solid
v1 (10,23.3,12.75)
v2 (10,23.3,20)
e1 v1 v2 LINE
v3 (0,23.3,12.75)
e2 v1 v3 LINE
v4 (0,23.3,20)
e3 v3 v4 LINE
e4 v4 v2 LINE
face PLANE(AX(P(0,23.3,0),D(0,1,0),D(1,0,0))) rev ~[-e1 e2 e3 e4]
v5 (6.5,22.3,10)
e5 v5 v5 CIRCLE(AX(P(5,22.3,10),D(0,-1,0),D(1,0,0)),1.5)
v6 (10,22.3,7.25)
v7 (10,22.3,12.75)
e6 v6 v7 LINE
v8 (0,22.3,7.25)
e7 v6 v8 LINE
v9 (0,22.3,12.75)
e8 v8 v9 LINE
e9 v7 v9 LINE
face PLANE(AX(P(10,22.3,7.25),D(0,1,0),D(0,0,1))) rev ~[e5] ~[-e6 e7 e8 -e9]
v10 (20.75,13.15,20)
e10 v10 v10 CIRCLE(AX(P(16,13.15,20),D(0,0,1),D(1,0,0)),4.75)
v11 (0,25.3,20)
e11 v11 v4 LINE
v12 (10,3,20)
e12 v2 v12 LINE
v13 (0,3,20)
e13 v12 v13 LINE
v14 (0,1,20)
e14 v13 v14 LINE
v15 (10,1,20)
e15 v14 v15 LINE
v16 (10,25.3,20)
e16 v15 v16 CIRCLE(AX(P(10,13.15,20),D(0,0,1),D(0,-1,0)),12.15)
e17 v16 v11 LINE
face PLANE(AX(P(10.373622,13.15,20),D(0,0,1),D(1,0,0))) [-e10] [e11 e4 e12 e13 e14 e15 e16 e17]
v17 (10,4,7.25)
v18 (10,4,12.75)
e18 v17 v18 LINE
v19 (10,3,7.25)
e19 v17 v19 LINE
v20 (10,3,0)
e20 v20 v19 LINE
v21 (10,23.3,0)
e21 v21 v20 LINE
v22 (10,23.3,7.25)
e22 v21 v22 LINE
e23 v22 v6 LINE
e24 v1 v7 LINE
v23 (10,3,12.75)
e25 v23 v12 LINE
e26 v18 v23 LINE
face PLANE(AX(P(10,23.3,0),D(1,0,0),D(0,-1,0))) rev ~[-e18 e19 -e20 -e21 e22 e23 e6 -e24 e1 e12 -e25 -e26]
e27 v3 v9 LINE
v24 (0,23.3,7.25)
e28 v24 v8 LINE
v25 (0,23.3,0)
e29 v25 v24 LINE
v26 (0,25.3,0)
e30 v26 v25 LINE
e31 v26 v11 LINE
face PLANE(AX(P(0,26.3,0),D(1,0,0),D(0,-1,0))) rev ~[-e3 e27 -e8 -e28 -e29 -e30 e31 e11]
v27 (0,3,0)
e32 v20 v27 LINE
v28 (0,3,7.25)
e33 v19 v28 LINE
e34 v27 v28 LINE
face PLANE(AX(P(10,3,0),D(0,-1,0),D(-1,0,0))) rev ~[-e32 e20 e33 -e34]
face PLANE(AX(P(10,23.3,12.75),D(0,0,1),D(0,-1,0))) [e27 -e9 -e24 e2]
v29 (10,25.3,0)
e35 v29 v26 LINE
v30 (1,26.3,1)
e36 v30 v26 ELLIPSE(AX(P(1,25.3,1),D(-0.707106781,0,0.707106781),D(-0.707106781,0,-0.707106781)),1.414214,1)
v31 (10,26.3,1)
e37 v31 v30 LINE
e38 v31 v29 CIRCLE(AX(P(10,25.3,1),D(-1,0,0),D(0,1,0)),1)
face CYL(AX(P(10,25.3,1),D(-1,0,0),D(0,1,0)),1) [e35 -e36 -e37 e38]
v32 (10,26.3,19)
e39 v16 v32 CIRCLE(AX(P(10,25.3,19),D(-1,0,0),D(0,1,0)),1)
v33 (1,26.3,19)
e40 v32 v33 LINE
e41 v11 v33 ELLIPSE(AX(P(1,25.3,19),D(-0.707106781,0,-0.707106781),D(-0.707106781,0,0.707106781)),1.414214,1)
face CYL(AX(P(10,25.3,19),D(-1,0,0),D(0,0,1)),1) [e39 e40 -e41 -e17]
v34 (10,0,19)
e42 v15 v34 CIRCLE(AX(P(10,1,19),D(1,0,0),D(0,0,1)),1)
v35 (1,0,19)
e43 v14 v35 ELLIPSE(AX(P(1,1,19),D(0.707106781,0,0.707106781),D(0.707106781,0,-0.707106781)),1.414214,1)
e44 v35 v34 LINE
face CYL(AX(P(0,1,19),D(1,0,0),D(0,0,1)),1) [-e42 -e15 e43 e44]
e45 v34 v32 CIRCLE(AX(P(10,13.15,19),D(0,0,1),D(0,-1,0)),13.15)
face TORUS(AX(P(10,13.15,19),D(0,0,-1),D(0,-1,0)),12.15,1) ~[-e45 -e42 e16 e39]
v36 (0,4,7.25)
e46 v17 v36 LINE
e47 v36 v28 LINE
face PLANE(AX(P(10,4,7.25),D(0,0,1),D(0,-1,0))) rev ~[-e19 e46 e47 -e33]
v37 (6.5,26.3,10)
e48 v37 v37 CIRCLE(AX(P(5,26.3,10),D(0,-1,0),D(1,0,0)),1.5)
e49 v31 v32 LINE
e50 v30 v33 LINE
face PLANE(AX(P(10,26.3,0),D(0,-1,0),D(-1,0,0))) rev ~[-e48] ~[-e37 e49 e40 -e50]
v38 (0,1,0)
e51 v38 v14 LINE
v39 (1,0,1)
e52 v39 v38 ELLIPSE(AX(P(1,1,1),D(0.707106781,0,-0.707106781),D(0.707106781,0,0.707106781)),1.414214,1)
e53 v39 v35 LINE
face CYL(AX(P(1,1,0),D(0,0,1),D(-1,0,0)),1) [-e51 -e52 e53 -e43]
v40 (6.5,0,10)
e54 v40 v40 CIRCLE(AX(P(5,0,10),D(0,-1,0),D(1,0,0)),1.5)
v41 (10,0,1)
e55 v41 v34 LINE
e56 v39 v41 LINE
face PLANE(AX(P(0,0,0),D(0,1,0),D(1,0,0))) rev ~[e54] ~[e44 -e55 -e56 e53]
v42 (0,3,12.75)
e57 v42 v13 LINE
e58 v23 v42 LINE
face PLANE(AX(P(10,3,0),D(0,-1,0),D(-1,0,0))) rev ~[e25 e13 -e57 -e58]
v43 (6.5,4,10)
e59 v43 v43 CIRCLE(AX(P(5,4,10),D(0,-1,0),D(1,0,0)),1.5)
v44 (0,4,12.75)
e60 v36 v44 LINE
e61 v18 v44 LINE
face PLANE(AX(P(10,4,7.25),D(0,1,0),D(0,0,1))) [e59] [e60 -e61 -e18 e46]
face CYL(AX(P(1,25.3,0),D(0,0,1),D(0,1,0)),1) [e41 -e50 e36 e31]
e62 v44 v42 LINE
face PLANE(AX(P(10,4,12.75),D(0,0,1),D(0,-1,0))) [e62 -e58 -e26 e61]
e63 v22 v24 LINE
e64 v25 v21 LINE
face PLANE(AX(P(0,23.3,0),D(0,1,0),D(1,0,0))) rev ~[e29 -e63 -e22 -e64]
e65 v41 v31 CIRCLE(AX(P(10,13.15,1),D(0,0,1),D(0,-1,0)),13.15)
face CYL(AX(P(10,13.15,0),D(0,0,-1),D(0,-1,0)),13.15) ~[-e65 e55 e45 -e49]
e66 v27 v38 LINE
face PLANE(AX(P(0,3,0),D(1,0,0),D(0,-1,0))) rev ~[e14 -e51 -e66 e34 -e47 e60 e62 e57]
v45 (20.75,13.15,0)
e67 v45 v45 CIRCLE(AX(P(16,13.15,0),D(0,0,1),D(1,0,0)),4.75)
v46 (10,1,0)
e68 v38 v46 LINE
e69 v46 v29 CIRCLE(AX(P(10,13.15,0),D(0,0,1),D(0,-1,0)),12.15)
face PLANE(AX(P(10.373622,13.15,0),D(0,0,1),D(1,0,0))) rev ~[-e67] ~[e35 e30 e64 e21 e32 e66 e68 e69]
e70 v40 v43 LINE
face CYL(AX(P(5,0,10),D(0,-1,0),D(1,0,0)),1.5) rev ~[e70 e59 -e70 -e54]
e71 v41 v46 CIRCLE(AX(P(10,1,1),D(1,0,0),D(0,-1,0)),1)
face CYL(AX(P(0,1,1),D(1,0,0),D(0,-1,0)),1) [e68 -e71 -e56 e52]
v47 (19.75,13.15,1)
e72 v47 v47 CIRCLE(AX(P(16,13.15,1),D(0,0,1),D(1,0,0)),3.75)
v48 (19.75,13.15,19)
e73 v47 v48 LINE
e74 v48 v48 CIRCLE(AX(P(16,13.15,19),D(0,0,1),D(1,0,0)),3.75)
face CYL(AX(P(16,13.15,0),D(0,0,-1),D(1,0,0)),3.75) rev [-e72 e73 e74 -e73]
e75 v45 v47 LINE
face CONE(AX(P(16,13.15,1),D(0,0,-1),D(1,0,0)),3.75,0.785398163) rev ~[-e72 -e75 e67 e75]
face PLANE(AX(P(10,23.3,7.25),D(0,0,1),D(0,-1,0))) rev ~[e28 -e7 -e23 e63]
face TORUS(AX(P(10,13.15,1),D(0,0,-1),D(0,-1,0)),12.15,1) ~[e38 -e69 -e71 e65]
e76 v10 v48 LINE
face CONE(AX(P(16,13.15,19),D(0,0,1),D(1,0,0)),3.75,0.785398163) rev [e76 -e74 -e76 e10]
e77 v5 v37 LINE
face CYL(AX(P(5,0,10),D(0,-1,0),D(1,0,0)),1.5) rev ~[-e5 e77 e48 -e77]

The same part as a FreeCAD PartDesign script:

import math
import FreeCAD as App
import Part
import Sketcher
from FreeCAD import Vector
Q = App.Units.Quantity


def edges_at(feature, points):
    """Names of the edges that pass closest to the given points."""
    edges = feature.Shape.Edges
    near = lambda p: min(range(len(edges)), key=lambda i: edges[i].distToShape(Part.Vertex(*p))[0])
    return sorted({f"Edge{near(p) + 1}" for p in points})

doc = App.newDocument("Part")
body = doc.addObject("PartDesign::Body", "Body")

# Sketch on XY plane
sketch1 = doc.addObject("Sketcher::SketchObject", "Sketch")
body.addObject(sketch1)
sketch1.AttachmentSupport = (doc.XY_Plane, [""])
sketch1.MapMode = "FlatFace"
sketch1.addGeometry([
    Part.LineSegment(Vector(0, 3, 0), Vector(0, 0, 0)),  # 0
    Part.LineSegment(Vector(0, 0, 0), Vector(10, 0, 0)),  # 1
    Part.ArcOfCircle(Part.Circle(Vector(10, 13.2, 0), Vector(0, 0, 1), 13.2), math.radians(-90), math.radians(90)),  # 2
    Part.LineSegment(Vector(10, 26.3, 0), Vector(0, 26.3, 0)),  # 3
    Part.LineSegment(Vector(0, 26.3, 0), Vector(0, 23.3, 0)),  # 4
    Part.LineSegment(Vector(0, 23.3, 0), Vector(10, 23.3, 0)),  # 5
    Part.LineSegment(Vector(10, 23.3, 0), Vector(10, 3, 0)),  # 6
    Part.LineSegment(Vector(10, 3, 0), Vector(0, 3, 0)),  # 7
    Part.Circle(Vector(16, 13.2, 0), Vector(0, 0, 1), 3.8),  # 8
], False)
sketch1.addConstraint([
    Sketcher.Constraint("Coincident", 0, 2, 1, 1),
    Sketcher.Constraint("Tangent", 1, 2, 2, 1),
    Sketcher.Constraint("Tangent", 2, 2, 3, 1),
    Sketcher.Constraint("Coincident", 3, 2, 4, 1),
    Sketcher.Constraint("Coincident", 4, 2, 5, 1),
    Sketcher.Constraint("Coincident", 5, 2, 6, 1),
    Sketcher.Constraint("Coincident", 6, 2, 7, 1),
    Sketcher.Constraint("Coincident", 7, 2, 0, 1),
    Sketcher.Constraint("Vertical", 0),
    Sketcher.Constraint("Horizontal", 1),
    Sketcher.Constraint("Horizontal", 3),
    Sketcher.Constraint("Vertical", 4),
    Sketcher.Constraint("Horizontal", 5),
    Sketcher.Constraint("Vertical", 6),
    Sketcher.Constraint("Horizontal", 7),
    Sketcher.Constraint("Coincident", 0, 2, -1, 1),
    Sketcher.Constraint("PointOnObject", 3, 2, -2),
    Sketcher.Constraint("Horizontal", 2, 3, 8, 3),
    Sketcher.Constraint("Vertical", 2, 2, 5, 2),
    Sketcher.Constraint("Equal", 0, 4),
    Sketcher.Constraint("Diameter", 8, Q("7.5 mm")),
    Sketcher.Constraint("DistanceX", 1, 1, 1, 2, Q("10 mm")),
    Sketcher.Constraint("DistanceY", 0, 2, 0, 1, Q("3 mm")),
    Sketcher.Constraint("Radius", 2, Q("13.15 mm")),
    Sketcher.Constraint("DistanceX", -1, 1, 8, 3, Q("16 mm")),
])
pad1 = doc.addObject("PartDesign::Pad", "Pad")
body.addObject(pad1)
pad1.Profile = sketch1
pad1.Length = 20

# Sketch on YZ plane
sketch2 = doc.addObject("Sketcher::SketchObject", "Sketch001")
body.addObject(sketch2)
sketch2.AttachmentSupport = (doc.YZ_Plane, [""])
sketch2.MapMode = "FlatFace"
sketch2.AttachmentOffset = App.Placement(Vector(0, 0, 10), App.Rotation())
sketch2.addGeometry([
    Part.LineSegment(Vector(23.3, 12.8, 0), Vector(23.3, 7.2, 0)),  # 0
    Part.LineSegment(Vector(23.3, 7.2, 0), Vector(22.3, 7.2, 0)),  # 1
    Part.LineSegment(Vector(22.3, 7.2, 0), Vector(22.3, 12.8, 0)),  # 2
    Part.LineSegment(Vector(22.3, 12.8, 0), Vector(23.3, 12.8, 0)),  # 3
    Part.LineSegment(Vector(4, 12.8, 0), Vector(4, 7.2, 0)),  # 4
    Part.LineSegment(Vector(4, 7.2, 0), Vector(3, 7.2, 0)),  # 5
    Part.LineSegment(Vector(3, 7.2, 0), Vector(3, 12.8, 0)),  # 6
    Part.LineSegment(Vector(3, 12.8, 0), Vector(4, 12.8, 0)),  # 7
], False)
sketch2.addConstraint([
    Sketcher.Constraint("Coincident", 0, 2, 1, 1),
    Sketcher.Constraint("Coincident", 1, 2, 2, 1),
    Sketcher.Constraint("Coincident", 2, 2, 3, 1),
    Sketcher.Constraint("Coincident", 3, 2, 0, 1),
    Sketcher.Constraint("Coincident", 4, 2, 5, 1),
    Sketcher.Constraint("Coincident", 5, 2, 6, 1),
    Sketcher.Constraint("Coincident", 6, 2, 7, 1),
    Sketcher.Constraint("Coincident", 7, 2, 4, 1),
    Sketcher.Constraint("Vertical", 0),
    Sketcher.Constraint("Horizontal", 1),
    Sketcher.Constraint("Vertical", 2),
    Sketcher.Constraint("Horizontal", 3),
    Sketcher.Constraint("Vertical", 4),
    Sketcher.Constraint("Horizontal", 5),
    Sketcher.Constraint("Vertical", 6),
    Sketcher.Constraint("Horizontal", 7),
    Sketcher.Constraint("Horizontal", 1, 2, 4, 2),
    Sketcher.Constraint("Horizontal", 3, 2, 6, 2),
    Sketcher.Constraint("Equal", 3, 5),
    Sketcher.Constraint("DistanceX", 1, 2, 1, 1, Q("1 mm")),
    Sketcher.Constraint("DistanceY", 0, 2, 0, 1, Q("5.5 mm")),
    Sketcher.Constraint("DistanceX", -1, 1, 4, 2, Q("4 mm")),
    Sketcher.Constraint("DistanceX", -1, 1, 0, 2, Q("23.3 mm")),
    Sketcher.Constraint("DistanceY", -1, 1, 0, 2, Q("7.25 mm")),
])
pad2 = doc.addObject("PartDesign::Pad", "Pad001")
body.addObject(pad2)
pad2.Profile = sketch2
pad2.Length = 10
pad2.Reversed = True

# Sketch on XZ plane
sketch3 = doc.addObject("Sketcher::SketchObject", "Sketch002")
body.addObject(sketch3)
sketch3.AttachmentSupport = (doc.XZ_Plane, [""])
sketch3.MapMode = "FlatFace"
sketch3.addGeometry(Part.Circle(Vector(5, 10, 0), Vector(0, 0, 1), 1.5), False)
sketch3.addConstraint([
    Sketcher.Constraint("Diameter", 0, Q("3 mm")),
    Sketcher.Constraint("DistanceX", -1, 1, 0, 3, Q("5 mm")),
    Sketcher.Constraint("DistanceY", -1, 1, 0, 3, Q("10 mm")),
])
pocket1 = doc.addObject("PartDesign::Pocket", "Pocket")
body.addObject(pocket1)
pocket1.Profile = sketch3
pocket1.Type = "ThroughAll"
doc.recompute()

chamfer = doc.addObject("PartDesign::Chamfer", "Chamfer")
body.addObject(chamfer)
chamfer.Base = (pocket1, edges_at(pocket1, [(12.25, 13.15, 20), (12.25, 13.15, 0)]))
chamfer.Size = 1
doc.recompute()

fillet = doc.addObject("PartDesign::Fillet", "Fillet")
body.addObject(fillet)
fillet.Base = (chamfer, edges_at(chamfer, [
    (23.15, 13.15, 20),
    (23.15, 13.15, 0),
    (0, 0, 10),
    (0, 26.3, 10),
]))
fillet.Radius = 1

doc.recompute()
